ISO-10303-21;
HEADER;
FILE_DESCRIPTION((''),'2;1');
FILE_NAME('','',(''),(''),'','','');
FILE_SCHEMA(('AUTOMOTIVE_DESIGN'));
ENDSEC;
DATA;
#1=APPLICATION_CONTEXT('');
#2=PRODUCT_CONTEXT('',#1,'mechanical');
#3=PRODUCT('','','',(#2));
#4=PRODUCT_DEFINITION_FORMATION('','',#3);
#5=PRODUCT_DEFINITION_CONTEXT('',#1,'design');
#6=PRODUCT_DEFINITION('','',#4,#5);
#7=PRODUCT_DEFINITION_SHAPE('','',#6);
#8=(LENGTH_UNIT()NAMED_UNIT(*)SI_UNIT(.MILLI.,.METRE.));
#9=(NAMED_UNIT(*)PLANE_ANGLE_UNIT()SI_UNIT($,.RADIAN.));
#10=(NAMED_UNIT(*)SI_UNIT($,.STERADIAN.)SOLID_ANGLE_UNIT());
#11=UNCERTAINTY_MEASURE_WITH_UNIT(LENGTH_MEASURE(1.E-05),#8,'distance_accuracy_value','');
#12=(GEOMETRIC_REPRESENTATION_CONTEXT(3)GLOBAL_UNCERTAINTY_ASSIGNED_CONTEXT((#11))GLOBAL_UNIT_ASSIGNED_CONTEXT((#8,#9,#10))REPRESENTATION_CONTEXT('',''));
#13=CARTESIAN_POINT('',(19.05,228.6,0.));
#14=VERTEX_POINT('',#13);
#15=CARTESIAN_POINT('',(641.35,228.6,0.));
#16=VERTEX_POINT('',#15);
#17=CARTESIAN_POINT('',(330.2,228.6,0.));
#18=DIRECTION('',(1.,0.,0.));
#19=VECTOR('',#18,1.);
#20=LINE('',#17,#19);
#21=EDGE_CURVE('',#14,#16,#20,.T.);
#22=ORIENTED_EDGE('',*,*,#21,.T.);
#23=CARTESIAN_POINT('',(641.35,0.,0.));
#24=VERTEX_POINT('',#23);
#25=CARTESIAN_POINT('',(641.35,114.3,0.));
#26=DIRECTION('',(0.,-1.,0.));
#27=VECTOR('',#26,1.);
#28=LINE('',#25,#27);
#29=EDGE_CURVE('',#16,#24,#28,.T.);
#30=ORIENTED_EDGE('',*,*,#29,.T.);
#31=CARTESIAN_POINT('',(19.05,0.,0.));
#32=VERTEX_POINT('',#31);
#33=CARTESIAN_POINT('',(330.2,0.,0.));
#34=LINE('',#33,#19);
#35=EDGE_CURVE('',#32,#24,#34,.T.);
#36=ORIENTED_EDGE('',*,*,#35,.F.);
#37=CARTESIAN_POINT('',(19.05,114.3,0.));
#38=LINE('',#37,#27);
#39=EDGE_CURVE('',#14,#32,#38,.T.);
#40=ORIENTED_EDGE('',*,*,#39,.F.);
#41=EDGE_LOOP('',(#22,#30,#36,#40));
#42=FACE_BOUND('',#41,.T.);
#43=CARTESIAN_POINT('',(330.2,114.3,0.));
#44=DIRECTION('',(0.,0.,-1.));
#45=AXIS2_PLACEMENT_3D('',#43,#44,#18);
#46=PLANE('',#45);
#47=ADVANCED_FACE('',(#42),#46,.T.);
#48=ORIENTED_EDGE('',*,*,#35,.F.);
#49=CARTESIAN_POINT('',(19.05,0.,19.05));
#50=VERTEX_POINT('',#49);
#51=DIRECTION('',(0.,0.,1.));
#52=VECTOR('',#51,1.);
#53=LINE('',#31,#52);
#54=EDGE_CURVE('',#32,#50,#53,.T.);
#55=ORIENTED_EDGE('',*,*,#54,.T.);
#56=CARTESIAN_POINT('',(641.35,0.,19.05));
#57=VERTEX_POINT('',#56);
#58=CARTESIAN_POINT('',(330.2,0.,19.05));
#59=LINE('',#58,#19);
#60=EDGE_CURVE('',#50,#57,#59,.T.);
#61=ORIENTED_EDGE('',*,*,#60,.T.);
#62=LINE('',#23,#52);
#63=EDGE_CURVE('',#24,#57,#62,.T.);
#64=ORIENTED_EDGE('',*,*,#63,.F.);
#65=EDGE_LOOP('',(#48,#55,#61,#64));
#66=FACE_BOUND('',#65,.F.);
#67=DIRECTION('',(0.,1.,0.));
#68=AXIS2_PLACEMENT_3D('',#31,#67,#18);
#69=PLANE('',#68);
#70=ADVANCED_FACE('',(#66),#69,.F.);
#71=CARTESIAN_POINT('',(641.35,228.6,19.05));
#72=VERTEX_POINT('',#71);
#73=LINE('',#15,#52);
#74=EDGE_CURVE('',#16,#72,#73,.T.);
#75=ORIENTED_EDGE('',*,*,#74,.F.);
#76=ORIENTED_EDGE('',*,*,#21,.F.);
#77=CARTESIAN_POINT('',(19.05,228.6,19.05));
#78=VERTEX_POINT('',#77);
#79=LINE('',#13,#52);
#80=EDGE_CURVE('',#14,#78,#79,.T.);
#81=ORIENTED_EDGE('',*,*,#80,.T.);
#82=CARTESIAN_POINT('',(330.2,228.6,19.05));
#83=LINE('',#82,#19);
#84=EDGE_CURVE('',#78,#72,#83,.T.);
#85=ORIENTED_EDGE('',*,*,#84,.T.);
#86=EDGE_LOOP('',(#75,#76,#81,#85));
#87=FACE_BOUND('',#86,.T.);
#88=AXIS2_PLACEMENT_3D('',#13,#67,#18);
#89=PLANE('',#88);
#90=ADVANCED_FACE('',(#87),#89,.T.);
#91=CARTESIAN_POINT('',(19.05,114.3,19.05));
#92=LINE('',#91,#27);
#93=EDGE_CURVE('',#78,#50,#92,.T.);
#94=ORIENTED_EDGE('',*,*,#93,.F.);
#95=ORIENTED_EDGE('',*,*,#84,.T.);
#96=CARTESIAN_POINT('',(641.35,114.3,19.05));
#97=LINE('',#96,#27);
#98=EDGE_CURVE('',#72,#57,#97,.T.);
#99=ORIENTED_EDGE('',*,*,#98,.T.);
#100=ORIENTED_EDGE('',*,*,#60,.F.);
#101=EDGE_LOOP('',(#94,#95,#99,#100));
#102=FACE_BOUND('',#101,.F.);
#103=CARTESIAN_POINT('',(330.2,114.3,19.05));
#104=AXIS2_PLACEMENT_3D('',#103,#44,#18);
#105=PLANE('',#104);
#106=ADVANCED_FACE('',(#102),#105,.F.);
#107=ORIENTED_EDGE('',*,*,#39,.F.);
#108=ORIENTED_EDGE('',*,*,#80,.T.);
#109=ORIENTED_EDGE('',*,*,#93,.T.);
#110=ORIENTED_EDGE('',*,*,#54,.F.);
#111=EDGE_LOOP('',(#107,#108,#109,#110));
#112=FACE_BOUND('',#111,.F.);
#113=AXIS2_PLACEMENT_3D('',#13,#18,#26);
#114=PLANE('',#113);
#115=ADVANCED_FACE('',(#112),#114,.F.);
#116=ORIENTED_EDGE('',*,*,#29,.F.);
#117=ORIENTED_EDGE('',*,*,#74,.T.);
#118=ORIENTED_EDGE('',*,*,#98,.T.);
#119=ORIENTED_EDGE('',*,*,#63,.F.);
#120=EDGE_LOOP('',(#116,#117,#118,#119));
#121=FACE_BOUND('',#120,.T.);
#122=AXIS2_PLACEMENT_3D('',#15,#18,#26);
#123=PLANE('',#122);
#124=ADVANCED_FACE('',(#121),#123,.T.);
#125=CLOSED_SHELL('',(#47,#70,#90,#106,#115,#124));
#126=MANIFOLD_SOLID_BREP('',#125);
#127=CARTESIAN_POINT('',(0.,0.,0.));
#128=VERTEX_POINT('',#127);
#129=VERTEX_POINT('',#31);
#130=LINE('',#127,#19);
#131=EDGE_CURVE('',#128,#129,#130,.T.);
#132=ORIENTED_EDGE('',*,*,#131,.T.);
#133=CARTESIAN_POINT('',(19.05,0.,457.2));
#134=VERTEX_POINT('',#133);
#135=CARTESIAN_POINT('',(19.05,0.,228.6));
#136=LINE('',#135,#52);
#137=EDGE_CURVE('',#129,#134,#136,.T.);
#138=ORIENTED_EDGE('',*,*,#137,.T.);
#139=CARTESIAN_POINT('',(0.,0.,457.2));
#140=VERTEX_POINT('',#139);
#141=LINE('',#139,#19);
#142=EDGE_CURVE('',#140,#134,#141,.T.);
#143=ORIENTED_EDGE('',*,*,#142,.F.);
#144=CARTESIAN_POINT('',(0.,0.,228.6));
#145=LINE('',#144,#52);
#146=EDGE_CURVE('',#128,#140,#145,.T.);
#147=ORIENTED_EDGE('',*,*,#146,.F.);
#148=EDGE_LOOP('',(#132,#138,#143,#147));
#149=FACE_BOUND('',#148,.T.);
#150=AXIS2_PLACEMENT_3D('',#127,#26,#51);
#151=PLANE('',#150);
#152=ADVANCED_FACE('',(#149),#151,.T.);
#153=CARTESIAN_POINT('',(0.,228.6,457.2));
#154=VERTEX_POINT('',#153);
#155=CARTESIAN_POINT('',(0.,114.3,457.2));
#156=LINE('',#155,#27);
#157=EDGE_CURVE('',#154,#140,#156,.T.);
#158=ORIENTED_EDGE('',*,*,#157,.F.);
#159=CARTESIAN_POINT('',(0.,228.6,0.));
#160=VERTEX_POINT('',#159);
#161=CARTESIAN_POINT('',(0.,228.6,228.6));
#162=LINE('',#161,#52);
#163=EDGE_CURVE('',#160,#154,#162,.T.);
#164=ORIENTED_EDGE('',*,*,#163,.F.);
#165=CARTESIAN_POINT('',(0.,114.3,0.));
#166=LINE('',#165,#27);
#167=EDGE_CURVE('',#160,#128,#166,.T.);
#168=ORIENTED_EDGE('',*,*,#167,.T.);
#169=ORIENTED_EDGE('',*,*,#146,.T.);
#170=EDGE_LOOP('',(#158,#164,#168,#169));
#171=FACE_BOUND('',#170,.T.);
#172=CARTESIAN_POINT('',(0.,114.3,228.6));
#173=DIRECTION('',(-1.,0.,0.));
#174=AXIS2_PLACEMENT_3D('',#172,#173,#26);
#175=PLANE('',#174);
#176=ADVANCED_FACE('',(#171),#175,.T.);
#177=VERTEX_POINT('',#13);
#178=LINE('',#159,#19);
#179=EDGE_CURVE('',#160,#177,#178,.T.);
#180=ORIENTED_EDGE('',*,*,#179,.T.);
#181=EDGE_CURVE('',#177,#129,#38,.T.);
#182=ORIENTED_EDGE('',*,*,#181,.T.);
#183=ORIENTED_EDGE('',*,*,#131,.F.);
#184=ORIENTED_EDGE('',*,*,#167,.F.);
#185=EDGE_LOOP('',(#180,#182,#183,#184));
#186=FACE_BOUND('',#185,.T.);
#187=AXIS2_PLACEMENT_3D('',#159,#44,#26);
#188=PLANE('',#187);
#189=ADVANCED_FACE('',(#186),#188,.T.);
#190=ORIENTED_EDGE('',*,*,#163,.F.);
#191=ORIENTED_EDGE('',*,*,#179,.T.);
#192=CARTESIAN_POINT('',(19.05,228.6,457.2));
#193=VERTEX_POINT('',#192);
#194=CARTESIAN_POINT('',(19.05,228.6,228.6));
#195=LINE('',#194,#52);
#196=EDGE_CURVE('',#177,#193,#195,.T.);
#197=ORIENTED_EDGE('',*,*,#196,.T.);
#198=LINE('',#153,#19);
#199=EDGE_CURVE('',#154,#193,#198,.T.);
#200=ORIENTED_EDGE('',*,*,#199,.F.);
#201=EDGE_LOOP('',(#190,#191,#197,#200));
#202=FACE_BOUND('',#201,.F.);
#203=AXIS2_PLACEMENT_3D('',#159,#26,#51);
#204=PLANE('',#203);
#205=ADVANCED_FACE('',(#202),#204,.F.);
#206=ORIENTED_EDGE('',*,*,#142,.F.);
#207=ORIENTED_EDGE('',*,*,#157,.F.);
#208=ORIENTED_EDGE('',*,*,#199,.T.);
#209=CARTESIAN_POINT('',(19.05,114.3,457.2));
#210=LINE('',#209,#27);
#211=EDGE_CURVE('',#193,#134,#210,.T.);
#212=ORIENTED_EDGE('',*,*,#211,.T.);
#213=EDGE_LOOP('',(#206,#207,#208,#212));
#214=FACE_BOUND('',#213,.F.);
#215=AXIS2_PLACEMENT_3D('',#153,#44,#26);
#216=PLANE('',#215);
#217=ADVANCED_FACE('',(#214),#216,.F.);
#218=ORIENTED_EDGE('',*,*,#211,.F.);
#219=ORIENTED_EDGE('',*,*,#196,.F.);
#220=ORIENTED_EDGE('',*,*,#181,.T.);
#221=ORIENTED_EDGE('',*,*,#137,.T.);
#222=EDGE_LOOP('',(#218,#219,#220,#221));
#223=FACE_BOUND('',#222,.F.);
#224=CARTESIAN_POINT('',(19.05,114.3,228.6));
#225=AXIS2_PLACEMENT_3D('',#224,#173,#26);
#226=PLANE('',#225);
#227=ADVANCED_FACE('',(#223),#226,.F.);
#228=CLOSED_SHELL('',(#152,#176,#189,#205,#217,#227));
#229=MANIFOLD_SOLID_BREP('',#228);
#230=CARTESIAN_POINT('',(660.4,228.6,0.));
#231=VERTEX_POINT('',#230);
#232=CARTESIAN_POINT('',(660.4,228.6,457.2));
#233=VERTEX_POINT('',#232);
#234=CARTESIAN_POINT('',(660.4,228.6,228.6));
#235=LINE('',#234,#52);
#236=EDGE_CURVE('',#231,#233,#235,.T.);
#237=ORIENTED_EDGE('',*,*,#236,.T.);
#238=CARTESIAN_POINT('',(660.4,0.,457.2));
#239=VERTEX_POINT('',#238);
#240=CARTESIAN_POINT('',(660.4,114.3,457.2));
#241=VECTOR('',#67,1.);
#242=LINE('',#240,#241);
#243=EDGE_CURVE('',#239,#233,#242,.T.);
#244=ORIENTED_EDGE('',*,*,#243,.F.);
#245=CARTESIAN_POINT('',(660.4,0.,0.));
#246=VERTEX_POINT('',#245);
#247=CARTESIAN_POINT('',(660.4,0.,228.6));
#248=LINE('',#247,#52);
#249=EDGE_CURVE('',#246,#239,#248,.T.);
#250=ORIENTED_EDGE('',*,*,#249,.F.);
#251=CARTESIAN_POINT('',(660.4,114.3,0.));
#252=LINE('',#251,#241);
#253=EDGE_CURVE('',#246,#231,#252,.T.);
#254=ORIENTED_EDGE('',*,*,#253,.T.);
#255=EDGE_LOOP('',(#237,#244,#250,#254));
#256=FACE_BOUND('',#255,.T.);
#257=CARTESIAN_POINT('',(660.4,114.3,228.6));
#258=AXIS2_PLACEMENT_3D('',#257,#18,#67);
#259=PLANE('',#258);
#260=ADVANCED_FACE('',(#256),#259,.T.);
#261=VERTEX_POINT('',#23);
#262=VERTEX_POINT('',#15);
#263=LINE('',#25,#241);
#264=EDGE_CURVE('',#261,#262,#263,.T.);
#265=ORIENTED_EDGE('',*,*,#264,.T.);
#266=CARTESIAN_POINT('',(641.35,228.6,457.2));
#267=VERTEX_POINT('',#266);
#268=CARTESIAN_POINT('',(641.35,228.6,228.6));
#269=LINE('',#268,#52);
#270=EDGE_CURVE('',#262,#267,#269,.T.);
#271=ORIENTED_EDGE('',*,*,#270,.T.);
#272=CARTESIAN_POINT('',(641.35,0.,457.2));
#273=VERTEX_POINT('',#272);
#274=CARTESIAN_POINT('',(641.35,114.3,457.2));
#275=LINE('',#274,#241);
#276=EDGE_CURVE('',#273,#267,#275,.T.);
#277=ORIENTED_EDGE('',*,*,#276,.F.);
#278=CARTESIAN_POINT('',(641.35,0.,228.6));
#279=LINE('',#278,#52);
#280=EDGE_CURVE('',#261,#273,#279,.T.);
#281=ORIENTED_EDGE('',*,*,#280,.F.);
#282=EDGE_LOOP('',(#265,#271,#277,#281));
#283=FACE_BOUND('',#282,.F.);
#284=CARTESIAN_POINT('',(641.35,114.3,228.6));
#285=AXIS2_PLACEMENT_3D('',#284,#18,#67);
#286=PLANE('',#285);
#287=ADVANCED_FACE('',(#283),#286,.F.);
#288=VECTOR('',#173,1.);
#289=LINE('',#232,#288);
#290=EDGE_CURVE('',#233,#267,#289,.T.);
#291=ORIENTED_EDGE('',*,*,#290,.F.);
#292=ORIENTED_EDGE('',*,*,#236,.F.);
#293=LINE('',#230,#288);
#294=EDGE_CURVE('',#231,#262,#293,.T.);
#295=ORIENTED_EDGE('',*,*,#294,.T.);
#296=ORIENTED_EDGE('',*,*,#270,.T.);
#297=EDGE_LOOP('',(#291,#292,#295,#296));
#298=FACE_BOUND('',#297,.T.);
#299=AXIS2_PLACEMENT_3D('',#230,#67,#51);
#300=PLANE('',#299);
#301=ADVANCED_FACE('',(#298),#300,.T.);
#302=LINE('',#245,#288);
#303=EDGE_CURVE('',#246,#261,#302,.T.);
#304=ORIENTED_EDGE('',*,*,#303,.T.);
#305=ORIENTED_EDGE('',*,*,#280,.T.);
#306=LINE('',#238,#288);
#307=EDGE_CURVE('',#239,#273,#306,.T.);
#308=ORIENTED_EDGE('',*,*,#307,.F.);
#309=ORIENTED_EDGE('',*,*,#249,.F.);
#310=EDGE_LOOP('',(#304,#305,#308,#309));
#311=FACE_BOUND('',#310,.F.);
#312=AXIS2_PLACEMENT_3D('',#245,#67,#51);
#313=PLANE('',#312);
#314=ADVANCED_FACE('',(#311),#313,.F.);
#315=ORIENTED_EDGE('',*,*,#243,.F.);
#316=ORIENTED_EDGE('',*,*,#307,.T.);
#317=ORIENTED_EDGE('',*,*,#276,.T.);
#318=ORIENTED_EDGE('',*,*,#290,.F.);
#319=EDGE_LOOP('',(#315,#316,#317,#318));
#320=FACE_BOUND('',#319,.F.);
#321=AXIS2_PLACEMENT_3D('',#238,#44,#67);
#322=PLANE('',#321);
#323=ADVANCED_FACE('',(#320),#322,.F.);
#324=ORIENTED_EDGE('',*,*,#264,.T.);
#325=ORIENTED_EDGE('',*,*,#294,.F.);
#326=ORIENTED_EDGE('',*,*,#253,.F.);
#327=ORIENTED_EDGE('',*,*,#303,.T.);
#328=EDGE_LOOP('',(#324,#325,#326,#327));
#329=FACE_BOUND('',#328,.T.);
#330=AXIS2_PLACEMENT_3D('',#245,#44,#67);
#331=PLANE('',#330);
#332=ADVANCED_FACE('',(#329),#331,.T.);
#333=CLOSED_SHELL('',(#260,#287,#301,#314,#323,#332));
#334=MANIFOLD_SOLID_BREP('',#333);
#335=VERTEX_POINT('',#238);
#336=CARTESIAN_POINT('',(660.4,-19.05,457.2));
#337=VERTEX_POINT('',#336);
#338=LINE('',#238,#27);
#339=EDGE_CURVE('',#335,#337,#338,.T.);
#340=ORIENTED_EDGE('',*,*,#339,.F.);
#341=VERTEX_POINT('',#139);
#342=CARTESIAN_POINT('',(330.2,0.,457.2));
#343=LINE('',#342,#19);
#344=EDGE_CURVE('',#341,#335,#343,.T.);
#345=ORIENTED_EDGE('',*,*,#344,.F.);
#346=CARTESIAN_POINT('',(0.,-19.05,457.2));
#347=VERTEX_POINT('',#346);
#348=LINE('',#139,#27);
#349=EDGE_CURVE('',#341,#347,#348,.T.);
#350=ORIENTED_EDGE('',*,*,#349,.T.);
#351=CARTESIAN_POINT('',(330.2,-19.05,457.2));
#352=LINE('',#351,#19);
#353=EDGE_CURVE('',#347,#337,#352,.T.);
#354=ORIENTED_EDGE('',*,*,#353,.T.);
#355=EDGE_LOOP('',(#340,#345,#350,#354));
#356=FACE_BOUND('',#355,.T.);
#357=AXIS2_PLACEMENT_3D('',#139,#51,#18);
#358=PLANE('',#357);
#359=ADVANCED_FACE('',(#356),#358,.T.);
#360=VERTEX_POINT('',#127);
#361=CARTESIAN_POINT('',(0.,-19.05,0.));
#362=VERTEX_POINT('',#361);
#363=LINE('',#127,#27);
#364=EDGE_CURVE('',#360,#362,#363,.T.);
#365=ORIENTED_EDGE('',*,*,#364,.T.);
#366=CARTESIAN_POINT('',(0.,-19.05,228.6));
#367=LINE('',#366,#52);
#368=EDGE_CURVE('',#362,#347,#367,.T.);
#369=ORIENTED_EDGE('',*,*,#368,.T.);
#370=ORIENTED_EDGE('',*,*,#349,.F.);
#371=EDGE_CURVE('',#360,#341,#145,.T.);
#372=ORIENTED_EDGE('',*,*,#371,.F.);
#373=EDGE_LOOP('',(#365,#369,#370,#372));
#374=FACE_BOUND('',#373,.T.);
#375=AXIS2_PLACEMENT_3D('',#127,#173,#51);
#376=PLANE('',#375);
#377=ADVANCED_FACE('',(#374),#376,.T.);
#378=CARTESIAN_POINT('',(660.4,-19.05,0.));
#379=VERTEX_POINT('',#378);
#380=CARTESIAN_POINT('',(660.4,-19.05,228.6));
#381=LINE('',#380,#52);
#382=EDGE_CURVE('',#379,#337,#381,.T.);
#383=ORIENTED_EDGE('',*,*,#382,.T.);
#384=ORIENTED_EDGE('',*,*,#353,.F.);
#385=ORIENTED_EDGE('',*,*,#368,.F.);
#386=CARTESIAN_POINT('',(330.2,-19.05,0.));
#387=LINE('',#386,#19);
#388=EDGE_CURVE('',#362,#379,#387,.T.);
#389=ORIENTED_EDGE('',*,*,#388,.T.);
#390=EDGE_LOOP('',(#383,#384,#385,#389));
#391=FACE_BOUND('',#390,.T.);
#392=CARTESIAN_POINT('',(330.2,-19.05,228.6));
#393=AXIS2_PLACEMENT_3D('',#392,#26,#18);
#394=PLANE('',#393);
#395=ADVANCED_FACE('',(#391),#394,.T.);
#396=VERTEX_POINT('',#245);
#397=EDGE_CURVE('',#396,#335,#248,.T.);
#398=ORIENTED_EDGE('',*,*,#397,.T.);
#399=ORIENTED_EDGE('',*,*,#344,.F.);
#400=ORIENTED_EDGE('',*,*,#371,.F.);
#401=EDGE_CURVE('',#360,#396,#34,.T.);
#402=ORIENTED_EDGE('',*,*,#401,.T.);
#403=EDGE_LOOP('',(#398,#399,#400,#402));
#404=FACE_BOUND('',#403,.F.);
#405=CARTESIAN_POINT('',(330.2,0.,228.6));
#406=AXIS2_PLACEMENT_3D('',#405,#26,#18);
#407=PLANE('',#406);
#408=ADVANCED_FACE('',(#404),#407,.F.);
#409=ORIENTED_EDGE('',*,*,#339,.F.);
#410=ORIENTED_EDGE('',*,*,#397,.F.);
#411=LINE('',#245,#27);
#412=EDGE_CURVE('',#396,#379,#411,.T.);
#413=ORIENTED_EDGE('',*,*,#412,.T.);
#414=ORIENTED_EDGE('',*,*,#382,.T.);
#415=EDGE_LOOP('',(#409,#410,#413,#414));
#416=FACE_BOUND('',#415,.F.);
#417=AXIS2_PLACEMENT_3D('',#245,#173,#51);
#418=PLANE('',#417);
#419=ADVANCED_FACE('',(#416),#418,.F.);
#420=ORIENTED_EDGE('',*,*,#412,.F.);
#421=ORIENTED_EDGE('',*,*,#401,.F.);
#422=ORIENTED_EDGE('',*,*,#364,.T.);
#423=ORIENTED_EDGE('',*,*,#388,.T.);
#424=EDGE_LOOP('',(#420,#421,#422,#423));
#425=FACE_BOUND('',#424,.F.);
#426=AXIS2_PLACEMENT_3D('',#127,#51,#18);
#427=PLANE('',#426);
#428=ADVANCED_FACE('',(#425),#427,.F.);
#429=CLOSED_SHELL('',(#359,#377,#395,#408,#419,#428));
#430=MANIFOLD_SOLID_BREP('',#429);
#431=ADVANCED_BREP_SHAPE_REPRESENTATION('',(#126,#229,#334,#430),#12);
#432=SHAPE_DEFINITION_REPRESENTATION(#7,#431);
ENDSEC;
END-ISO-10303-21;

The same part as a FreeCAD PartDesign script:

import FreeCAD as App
import Part
import Sketcher
Q = App.Units.Quantity


def add_polygon(sketch, points):
    """Adds a closed chain of lines whose ends are joined by coincident constraints."""
    first, n = sketch.GeometryCount, len(points)
    for a, b in zip(points, points[1:] + points[:1]):
        sketch.addGeometry(Part.LineSegment(App.Vector(*a, 0), App.Vector(*b, 0)), False)
    for i in range(n):
        sketch.addConstraint(Sketcher.Constraint("Coincident", first + i, 2, first + (i + 1) % n, 1))

doc = App.newDocument("Part")
body = doc.addObject("PartDesign::Body", "Body")

# Sketch on XZ plane
sketch1 = body.newObject("Sketcher::SketchObject", "Sketch")
sketch1.AttachmentSupport = (doc.getObject("XZ_Plane"), [""])
sketch1.MapMode = "FlatFace"
add_polygon(sketch1, [(0, 457), (0, 0), (660, 0), (660, 457)])  # lines 0-3
sketch1.addConstraint([
    Sketcher.Constraint("Vertical", 0),
    Sketcher.Constraint("Horizontal", 1),
    Sketcher.Constraint("Vertical", 2),
    Sketcher.Constraint("Horizontal", 3),
    Sketcher.Constraint("Coincident", 0, 2, -1, 1),
    Sketcher.Constraint("DistanceX", 1, 1, 1, 2, Q("26 in")),
    Sketcher.Constraint("DistanceY", 0, 2, 0, 1, Q("18 in")),
])
pad1 = body.newObject("PartDesign::Pad", "Pad")
pad1.Profile = sketch1
pad1.Length = Q("0.75 in")
body2 = doc.addObject("PartDesign::Body", "Body001")

# Sketch on YZ plane
sketch2 = body2.newObject("Sketcher::SketchObject", "Sketch001")
sketch2.AttachmentSupport = (doc.getObject("YZ_Plane001"), [""])
sketch2.MapMode = "FlatFace"
sketch2.AttachmentOffset = App.Placement(App.Vector(0, 0, 26 * 25.4), App.Rotation())
add_polygon(sketch2, [(0, 457), (0, 0), (229, 0), (229, 457)])  # lines 0-3
sketch2.addConstraint([
    Sketcher.Constraint("Vertical", 0),
    Sketcher.Constraint("Horizontal", 1),
    Sketcher.Constraint("Vertical", 2),
    Sketcher.Constraint("Horizontal", 3),
    Sketcher.Constraint("Coincident", 0, 2, -1, 1),
    Sketcher.Constraint("DistanceX", 1, 1, 1, 2, Q("9 in")),
    Sketcher.Constraint("DistanceY", 0, 2, 0, 1, Q("18 in")),
])
pad2 = body2.newObject("PartDesign::Pad", "Pad001")
pad2.Profile = sketch2
pad2.Length = Q("0.75 in")
pad2.Reversed = True
body3 = doc.addObject("PartDesign::Body", "Body002")

# Sketch on YZ plane
sketch3 = body3.newObject("Sketcher::SketchObject", "Sketch002")
sketch3.AttachmentSupport = (doc.getObject("YZ_Plane002"), [""])
sketch3.MapMode = "FlatFace"
add_polygon(sketch3, [(229, 457), (229, 0), (0, 0), (0, 457)])  # lines 0-3
sketch3.addConstraint([
    Sketcher.Constraint("Vertical", 0),
    Sketcher.Constraint("Horizontal", 1),
    Sketcher.Constraint("Vertical", 2),
    Sketcher.Constraint("Horizontal", 3),
    Sketcher.Constraint("Coincident", 1, 2, -1, 1),
    Sketcher.Constraint("DistanceX", 1, 2, 1, 1, Q("9 in")),
    Sketcher.Constraint("DistanceY", 0, 2, 0, 1, Q("18 in")),
])
pad3 = body3.newObject("PartDesign::Pad", "Pad002")
pad3.Profile = sketch3
pad3.Length = Q("0.75 in")
body4 = doc.addObject("PartDesign::Body", "Body003")

# Sketch on XY plane
sketch4 = body4.newObject("Sketcher::SketchObject", "Sketch003")
sketch4.AttachmentSupport = (doc.getObject("XY_Plane003"), [""])
sketch4.MapMode = "FlatFace"
add_polygon(sketch4, [(19, 0), (19, 229), (641, 229), (641, 0)])  # lines 0-3
sketch4.addConstraint([
    Sketcher.Constraint("Vertical", 0),
    Sketcher.Constraint("Horizontal", 1),
    Sketcher.Constraint("Vertical", 2),
    Sketcher.Constraint("Horizontal", 3),
    Sketcher.Constraint("PointOnObject", 2, 2, -1),
    Sketcher.Constraint("DistanceY", 0, 1, 0, 2, Q("9 in")),
    Sketcher.Constraint("DistanceX", 1, 1, 1, 2, Q("24.5 in")),
    Sketcher.Constraint("DistanceX", -1, 1, 0, 2, Q("0.75 in")),
])
pad4 = body4.newObject("PartDesign::Pad", "Pad003")
pad4.Profile = sketch4
pad4.Length = Q("0.75 in")

doc.recompute()
